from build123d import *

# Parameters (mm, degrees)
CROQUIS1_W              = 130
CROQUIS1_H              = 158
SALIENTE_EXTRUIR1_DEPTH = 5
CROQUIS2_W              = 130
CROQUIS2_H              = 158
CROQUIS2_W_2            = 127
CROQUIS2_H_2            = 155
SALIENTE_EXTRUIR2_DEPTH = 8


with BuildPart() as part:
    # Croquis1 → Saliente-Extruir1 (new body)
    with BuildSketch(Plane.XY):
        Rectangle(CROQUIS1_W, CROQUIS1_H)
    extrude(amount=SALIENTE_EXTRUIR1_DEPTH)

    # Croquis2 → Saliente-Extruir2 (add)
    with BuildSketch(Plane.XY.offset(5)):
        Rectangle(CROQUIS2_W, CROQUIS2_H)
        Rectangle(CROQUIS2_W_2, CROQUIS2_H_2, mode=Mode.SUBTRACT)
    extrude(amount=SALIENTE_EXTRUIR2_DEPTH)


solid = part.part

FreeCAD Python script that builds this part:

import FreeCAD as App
import Part
import Sketcher


def add_polygon(sketch, points):
    """Adds a closed chain of lines whose ends are joined by coincident constraints."""
    first, n = sketch.GeometryCount, len(points)
    for a, b in zip(points, points[1:] + points[:1]):
        sketch.addGeometry(Part.LineSegment(App.Vector(*a, 0), App.Vector(*b, 0)), False)
    for i in range(n):
        sketch.addConstraint(Sketcher.Constraint("Coincident", first + i, 2, first + (i + 1) % n, 1))

doc = App.newDocument("Part")
body = doc.addObject("PartDesign::Body", "Body")

# Sketch on XY plane
sketch1 = body.newObject("Sketcher::SketchObject", "Sketch")
sketch1.AttachmentSupport = (doc.getObject("XY_Plane"), [""])
sketch1.MapMode = "FlatFace"
add_polygon(sketch1, [(-65, 79), (-65, -79), (65, -79), (65, 79)])  # lines 0-3
sketch1.addConstraint([
    Sketcher.Constraint("Vertical", 0),
    Sketcher.Constraint("Horizontal", 1),
    Sketcher.Constraint("Vertical", 2),
    Sketcher.Constraint("Horizontal", 3),
    Sketcher.Constraint("Symmetric", 0, 2, 2, 2, -1, 1),
    Sketcher.Constraint("DistanceX", 1, 1, 1, 2, 130.0),
    Sketcher.Constraint("DistanceY", 0, 2, 0, 1, 158.0),
])
pad1 = body.newObject("PartDesign::Pad", "Pad")
pad1.Profile = sketch1
pad1.Length = 5

# Sketch on XY plane
sketch2 = body.newObject("Sketcher::SketchObject", "Sketch001")
sketch2.AttachmentSupport = (doc.getObject("XY_Plane"), [""])
sketch2.MapMode = "FlatFace"
sketch2.AttachmentOffset = App.Placement(App.Vector(0, 0, 5), App.Rotation())
add_polygon(sketch2, [(-65, 79), (-65, -79), (65, -79), (65, 79)])  # lines 0-3
add_polygon(sketch2, [(63.5, -77.5), (-63.5, -77.5), (-63.5, 77.5), (63.5, 77.5)])  # lines 4-7
sketch2.addConstraint([
    Sketcher.Constraint("Vertical", 0),
    Sketcher.Constraint("Horizontal", 1),
    Sketcher.Constraint("Vertical", 2),
    Sketcher.Constraint("Horizontal", 3),
    Sketcher.Constraint("Horizontal", 4),
    Sketcher.Constraint("Vertical", 5),
    Sketcher.Constraint("Horizontal", 6),
    Sketcher.Constraint("Vertical", 7),
    Sketcher.Constraint("Symmetric", 0, 2, 2, 2, -1, 1),
    Sketcher.Constraint("Symmetric", 4, 2, 6, 2, -1, 1),
    Sketcher.Constraint("DistanceX", 1, 1, 1, 2, 130.0),
    Sketcher.Constraint("DistanceX", 4, 2, 4, 1, 127.0),
    Sketcher.Constraint("DistanceY", 0, 2, 0, 1, 158.0),
    Sketcher.Constraint("DistanceY", 5, 1, 5, 2, 155.0),
])
pad2 = body.newObject("PartDesign::Pad", "Pad001")
pad2.Profile = sketch2
pad2.Length = 8

doc.recompute()
